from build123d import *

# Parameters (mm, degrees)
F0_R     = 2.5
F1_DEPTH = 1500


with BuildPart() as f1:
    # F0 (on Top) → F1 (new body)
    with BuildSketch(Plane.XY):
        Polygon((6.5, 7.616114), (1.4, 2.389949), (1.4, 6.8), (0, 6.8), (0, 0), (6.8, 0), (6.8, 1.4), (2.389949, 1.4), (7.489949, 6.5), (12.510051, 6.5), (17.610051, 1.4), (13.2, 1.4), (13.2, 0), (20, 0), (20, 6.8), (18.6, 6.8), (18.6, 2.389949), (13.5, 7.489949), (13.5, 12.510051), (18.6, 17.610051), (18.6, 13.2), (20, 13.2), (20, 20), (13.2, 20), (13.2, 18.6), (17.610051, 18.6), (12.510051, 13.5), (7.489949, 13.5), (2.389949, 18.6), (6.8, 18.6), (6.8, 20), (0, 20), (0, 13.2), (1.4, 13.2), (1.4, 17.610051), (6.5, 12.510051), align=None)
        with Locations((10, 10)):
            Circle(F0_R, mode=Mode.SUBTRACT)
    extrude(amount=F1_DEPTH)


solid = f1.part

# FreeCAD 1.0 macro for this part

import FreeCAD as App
import Part
import Sketcher
Q = App.Units.Quantity


def add_polygon(sketch, points):
    """Adds a closed chain of lines whose ends are joined by coincident constraints."""
    first, n = sketch.GeometryCount, len(points)
    for a, b in zip(points, points[1:] + points[:1]):
        sketch.addGeometry(Part.LineSegment(App.Vector(*a, 0), App.Vector(*b, 0)), False)
    for i in range(n):
        sketch.addConstraint(Sketcher.Constraint("Coincident", first + i, 2, first + (i + 1) % n, 1))

doc = App.newDocument("Part")
body = doc.addObject("PartDesign::Body", "Body")

# Sketch on XY plane
sketch1 = doc.addObject("Sketcher::SketchObject", "Sketch")
body.addObject(sketch1)
sketch1.AttachmentSupport = (doc.XY_Plane, [""])
sketch1.MapMode = "FlatFace"
add_polygon(sketch1, [(6.5, 7.6), (1.4, 2.4), (1.4, 6.8), (0, 6.8), (0, 0), (6.8, 0), (6.8, 1.4), (2.4, 1.4), (7.5, 6.5), (12.5, 6.5), (17.6, 1.4), (13.2, 1.4), (13.2, 0), (20, 0), (20, 6.8), (18.6, 6.8), (18.6, 2.4), (13.5, 7.5), (13.5, 12.5), (18.6, 17.6), (18.6, 13.2), (20, 13.2), (20, 20), (13.2, 20), (13.2, 18.6), (17.6, 18.6), (12.5, 13.5), (7.5, 13.5), (2.4, 18.6), (6.8, 18.6), (6.8, 20), (0, 20), (0, 13.2), (1.4, 13.2), (1.4, 17.6), (6.5, 12.5)])  # lines 0-35
sketch1.addGeometry(Part.Circle(App.Vector(10, 10, 0), App.Vector(0, 0, 1), 2.5), False)  # 36
sketch1.addConstraint([
    Sketcher.Constraint("Vertical", 1),
    Sketcher.Constraint("Horizontal", 2),
    Sketcher.Constraint("Vertical", 3),
    Sketcher.Constraint("Horizontal", 4),
    Sketcher.Constraint("Vertical", 5),
    Sketcher.Constraint("Horizontal", 6),
    Sketcher.Constraint("Horizontal", 8),
    Sketcher.Constraint("Horizontal", 10),
    Sketcher.Constraint("Vertical", 11),
    Sketcher.Constraint("Horizontal", 12),
    Sketcher.Constraint("Vertical", 13),
    Sketcher.Constraint("Horizontal", 14),
    Sketcher.Constraint("Vertical", 15),
    Sketcher.Constraint("Vertical", 17),
    Sketcher.Constraint("Vertical", 19),
    Sketcher.Constraint("Horizontal", 20),
    Sketcher.Constraint("Vertical", 21),
    Sketcher.Constraint("Horizontal", 22),
    Sketcher.Constraint("Vertical", 23),
    Sketcher.Constraint("Horizontal", 24),
    Sketcher.Constraint("Horizontal", 26),
    Sketcher.Constraint("Horizontal", 28),
    Sketcher.Constraint("Vertical", 29),
    Sketcher.Constraint("Horizontal", 30),
    Sketcher.Constraint("Vertical", 31),
    Sketcher.Constraint("Horizontal", 32),
    Sketcher.Constraint("Vertical", 33),
    Sketcher.Constraint("Vertical", 35),
    Sketcher.Constraint("Coincident", 3, 2, -1, 1),
    Sketcher.Constraint("PointOnObject", 11, 2, -1),
    Sketcher.Constraint("PointOnObject", 30, 2, -2),
    Sketcher.Constraint("Perpendicular", 7, 9),
    Sketcher.Constraint("Parallel", 9, 16),
    Sketcher.Constraint("Perpendicular", 16, 18),
    Sketcher.Constraint("Parallel", 18, 25),
    Sketcher.Constraint("Perpendicular", 25, 27),
    Sketcher.Constraint("Parallel", 27, 34),
    Sketcher.Constraint("Horizontal", 6, 2, 9, 2),
    Sketcher.Constraint("Horizontal", 2, 2, 13, 2),
    Sketcher.Constraint("Horizontal", 0, 2, 15, 2),
    Sketcher.Constraint("Horizontal", 24, 2, 27, 2),
    Sketcher.Constraint("Horizontal", 22, 2, 29, 2),
    Sketcher.Constraint("Horizontal", 20, 2, 31, 2),
    Sketcher.Constraint("Horizontal", 18, 2, 33, 2),
    Sketcher.Constraint("Horizontal", 17, 2, 34, 2),
    Sketcher.Constraint("Vertical", 15, 2, 18, 2),
    Sketcher.Constraint("Vertical", 13, 2, 20, 2),
    Sketcher.Constraint("Vertical", 11, 2, 22, 2),
    Sketcher.Constraint("Vertical", 9, 2, 24, 2),
    Sketcher.Constraint("Vertical", 8, 2, 25, 2),
    Sketcher.Constraint("Vertical", 7, 2, 26, 2),
    Sketcher.Constraint("Vertical", 6, 2, 27, 2),
    Sketcher.Constraint("Vertical", 5, 2, 28, 2),
    Sketcher.Constraint("Vertical", 1, 2, 32, 2),
    Sketcher.Constraint("Equal", 6, 10),
    Sketcher.Constraint("Equal", 4, 12),
    Sketcher.Constraint("Equal", 2, 14),
    Sketcher.Constraint("Equal", 28, 1),
    Sketcher.Constraint("Equal", 30, 3),
    Sketcher.Constraint("Equal", 32, 5),
    Sketcher.Constraint("Equal", 26, 17),
    Sketcher.Constraint("Equal", 15, 19),
    Sketcher.Constraint("Equal", 13, 21),
    Sketcher.Constraint("Equal", 11, 23),
    Sketcher.Constraint("Equal", 9, 16),
    Sketcher.Constraint("Diameter", 36, Q("5 mm")),
    Sketcher.Constraint("DistanceX", 2, 2, 2, 1, Q("1.4 mm")),
    Sketcher.Constraint("DistanceX", 4, 1, 4, 2, Q("6.8 mm")),
    Sketcher.Constraint("DistanceX", -1, 1, 36, 3, Q("10 mm")),
    Sketcher.Constraint("DistanceY", -1, 1, 36, 3, Q("10 mm")),
    Sketcher.Constraint("DistanceX", -1, 1, 12, 2, Q("20 mm")),
    Sketcher.Constraint("Angle", 0, Q("-134.299995 deg")),
    Sketcher.Constraint("DistanceY", 7, 2, 26, 2, Q("7 mm")),
    Sketcher.Constraint("DistanceX", 6, 2, 6, 1, Q("4.410051 mm")),
])
pad1 = doc.addObject("PartDesign::Pad", "Pad")
body.addObject(pad1)
pad1.Profile = sketch1
pad1.Length = 1500

doc.recompute()
